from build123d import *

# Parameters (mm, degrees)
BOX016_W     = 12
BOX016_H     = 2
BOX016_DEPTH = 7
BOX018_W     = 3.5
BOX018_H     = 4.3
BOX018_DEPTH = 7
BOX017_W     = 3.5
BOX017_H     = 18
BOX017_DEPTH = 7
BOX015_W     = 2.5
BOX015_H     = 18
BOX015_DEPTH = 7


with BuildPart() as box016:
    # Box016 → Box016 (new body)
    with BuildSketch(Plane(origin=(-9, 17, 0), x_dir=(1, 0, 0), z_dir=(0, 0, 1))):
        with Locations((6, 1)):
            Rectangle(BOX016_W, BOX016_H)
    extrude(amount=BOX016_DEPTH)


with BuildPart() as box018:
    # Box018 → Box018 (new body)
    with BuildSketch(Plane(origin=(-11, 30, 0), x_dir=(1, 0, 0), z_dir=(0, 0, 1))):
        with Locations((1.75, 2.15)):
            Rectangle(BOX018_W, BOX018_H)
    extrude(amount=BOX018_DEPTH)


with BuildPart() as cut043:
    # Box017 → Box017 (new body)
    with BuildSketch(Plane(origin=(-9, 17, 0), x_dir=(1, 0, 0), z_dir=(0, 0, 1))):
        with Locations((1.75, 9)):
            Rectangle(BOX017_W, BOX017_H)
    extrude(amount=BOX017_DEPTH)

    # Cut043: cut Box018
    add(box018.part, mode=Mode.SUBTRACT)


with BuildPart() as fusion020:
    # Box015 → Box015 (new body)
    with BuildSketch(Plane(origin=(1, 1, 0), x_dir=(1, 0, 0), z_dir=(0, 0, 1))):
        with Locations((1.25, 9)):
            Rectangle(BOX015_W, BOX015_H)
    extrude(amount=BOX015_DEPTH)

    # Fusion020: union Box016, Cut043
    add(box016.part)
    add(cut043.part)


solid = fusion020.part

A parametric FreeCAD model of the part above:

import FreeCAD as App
import Part
import Sketcher


def add_polygon(sketch, points):
    """Adds a closed chain of lines whose ends are joined by coincident constraints."""
    first, n = sketch.GeometryCount, len(points)
    for a, b in zip(points, points[1:] + points[:1]):
        sketch.addGeometry(Part.LineSegment(App.Vector(*a, 0), App.Vector(*b, 0)), False)
    for i in range(n):
        sketch.addConstraint(Sketcher.Constraint("Coincident", first + i, 2, first + (i + 1) % n, 1))

doc = App.newDocument("Part")
body = doc.addObject("PartDesign::Body", "Body")

# Sketch on XY plane
sketch1 = doc.addObject("Sketcher::SketchObject", "Sketch")
body.addObject(sketch1)
sketch1.AttachmentSupport = (doc.XY_Plane, [""])
sketch1.MapMode = "FlatFace"
add_polygon(sketch1, [(-9, 19), (-9, 17), (3, 17), (3, 19)])  # lines 0-3
sketch1.addConstraint([
    Sketcher.Constraint("Vertical", 0),
    Sketcher.Constraint("Horizontal", 1),
    Sketcher.Constraint("Vertical", 2),
    Sketcher.Constraint("Horizontal", 3),
    Sketcher.Constraint("DistanceX", 1, 1, 1, 2, 12.0),
    Sketcher.Constraint("DistanceY", 0, 2, 0, 1, 2.0),
    Sketcher.Constraint("DistanceX", 0, 2, -1, 1, 9.0),
    Sketcher.Constraint("DistanceY", -1, 1, 0, 2, 17.0),
])
pad1 = doc.addObject("PartDesign::Pad", "Pad")
body.addObject(pad1)
pad1.Profile = sketch1
pad1.Length = 7
body2 = doc.addObject("PartDesign::Body", "Body001")

# Sketch on XY plane
sketch2 = doc.addObject("Sketcher::SketchObject", "Sketch001")
body2.addObject(sketch2)
sketch2.AttachmentSupport = (doc.getObject("XY_Plane001"), [""])
sketch2.MapMode = "FlatFace"
add_polygon(sketch2, [(-11, 34.3), (-11, 30), (-7.5, 30), (-7.5, 34.3)])  # lines 0-3
sketch2.addConstraint([
    Sketcher.Constraint("Vertical", 0),
    Sketcher.Constraint("Horizontal", 1),
    Sketcher.Constraint("Vertical", 2),
    Sketcher.Constraint("Horizontal", 3),
    Sketcher.Constraint("DistanceX", 1, 1, 1, 2, 3.5),
    Sketcher.Constraint("DistanceY", 0, 2, 0, 1, 4.3),
    Sketcher.Constraint("DistanceX", 0, 2, -1, 1, 11.0),
    Sketcher.Constraint("DistanceY", -1, 1, 0, 2, 30.0),
])
pad2 = doc.addObject("PartDesign::Pad", "Pad001")
body2.addObject(pad2)
pad2.Profile = sketch2
pad2.Length = 7
body3 = doc.addObject("PartDesign::Body", "Body002")

# Sketch on XY plane
sketch3 = doc.addObject("Sketcher::SketchObject", "Sketch002")
body3.addObject(sketch3)
sketch3.AttachmentSupport = (doc.getObject("XY_Plane002"), [""])
sketch3.MapMode = "FlatFace"
add_polygon(sketch3, [(-9, 35), (-9, 17), (-5.5, 17), (-5.5, 35)])  # lines 0-3
sketch3.addConstraint([
    Sketcher.Constraint("Vertical", 0),
    Sketcher.Constraint("Horizontal", 1),
    Sketcher.Constraint("Vertical", 2),
    Sketcher.Constraint("Horizontal", 3),
    Sketcher.Constraint("DistanceY", 0, 2, 0, 1, 18.0),
    Sketcher.Constraint("DistanceX", 1, 1, 1, 2, 3.5),
    Sketcher.Constraint("DistanceX", 0, 2, -1, 1, 9.0),
    Sketcher.Constraint("DistanceY", -1, 1, 0, 2, 17.0),
])
pad3 = doc.addObject("PartDesign::Pad", "Pad002")
body3.addObject(pad3)
pad3.Profile = sketch3
pad3.Length = 7
doc.recompute()

boolean = doc.addObject("PartDesign::Boolean", "Boolean")
body3.addObject(boolean)
boolean.Type = "Cut"
boolean.addObjects([body2])
body4 = doc.addObject("PartDesign::Body", "Body003")

# Sketch on XY plane
sketch4 = doc.addObject("Sketcher::SketchObject", "Sketch003")
body4.addObject(sketch4)
sketch4.AttachmentSupport = (doc.getObject("XY_Plane003"), [""])
sketch4.MapMode = "FlatFace"
add_polygon(sketch4, [(1, 19), (1, 1), (3.5, 1), (3.5, 19)])  # lines 0-3
sketch4.addConstraint([
    Sketcher.Constraint("Vertical", 0),
    Sketcher.Constraint("Horizontal", 1),
    Sketcher.Constraint("Vertical", 2),
    Sketcher.Constraint("Horizontal", 3),
    Sketcher.Constraint("DistanceY", 0, 2, 0, 1, 18.0),
    Sketcher.Constraint("DistanceX", 1, 1, 1, 2, 2.5),
    Sketcher.Constraint("DistanceX", -1, 1, 0, 2, 1.0),
    Sketcher.Constraint("DistanceY", -1, 1, 0, 2, 1.0),
])
pad4 = doc.addObject("PartDesign::Pad", "Pad003")
body4.addObject(pad4)
pad4.Profile = sketch4
pad4.Length = 7
doc.recompute()

boolean2 = doc.addObject("PartDesign::Boolean", "Boolean001")
body4.addObject(boolean2)
boolean2.Type = "Fuse"
boolean2.addObjects([body])
doc.recompute()

boolean3 = doc.addObject("PartDesign::Boolean", "Boolean002")
body4.addObject(boolean3)
boolean3.Type = "Fuse"
boolean3.addObjects([body3])

doc.recompute()
